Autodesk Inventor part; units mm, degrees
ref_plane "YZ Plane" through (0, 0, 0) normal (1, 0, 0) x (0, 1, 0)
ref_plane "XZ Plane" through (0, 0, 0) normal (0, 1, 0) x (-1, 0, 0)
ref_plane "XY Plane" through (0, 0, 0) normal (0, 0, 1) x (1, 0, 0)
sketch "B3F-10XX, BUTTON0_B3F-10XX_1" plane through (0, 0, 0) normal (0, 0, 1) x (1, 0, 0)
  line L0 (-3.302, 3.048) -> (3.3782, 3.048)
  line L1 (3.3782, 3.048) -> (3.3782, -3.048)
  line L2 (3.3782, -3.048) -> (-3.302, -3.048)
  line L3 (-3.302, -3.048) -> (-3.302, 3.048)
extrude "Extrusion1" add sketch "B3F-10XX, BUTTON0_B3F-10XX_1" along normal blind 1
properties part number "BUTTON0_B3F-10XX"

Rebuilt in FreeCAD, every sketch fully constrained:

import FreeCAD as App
import Part
import Sketcher
from FreeCAD import Vector
Q = App.Units.Quantity

doc = App.newDocument("Part")
params = doc.addObject("Spreadsheet::Sheet", "Params")
for row, (alias, value) in enumerate([
    ("sketch1_height", "0.24 in"),
    ("sketch1_width", "0.263 in"),
    ("pad1_length", "1 mm"),
], start=1):
    params.set(f"A{row}", alias)
    params.set(f"B{row}", "=" + value)
    params.setAlias(f"B{row}", alias)

body = doc.addObject("PartDesign::Body", "Body")

# Sketch on XY plane
sketch1 = doc.addObject("Sketcher::SketchObject", "Sketch")
body.addObject(sketch1)
sketch1.AttachmentSupport = (doc.XY_Plane, [""])
sketch1.MapMode = "FlatFace"
sketch1.addGeometry([
    Part.LineSegment(Vector(3, 3, 0), Vector(-3, 3, 0)),
    Part.LineSegment(Vector(-3, 3, 0), Vector(-3, -3, 0)),
    Part.LineSegment(Vector(-3, -3, 0), Vector(3, -3, 0)),
    Part.LineSegment(Vector(3, -3, 0), Vector(3, 3, 0)),
], False)
sketch1.addConstraint([
    Sketcher.Constraint("Coincident", 0, 2, 1, 1),
    Sketcher.Constraint("Coincident", 1, 2, 2, 1),
    Sketcher.Constraint("Coincident", 2, 2, 3, 1),
    Sketcher.Constraint("Coincident", 3, 2, 0, 1),
    Sketcher.Constraint("Horizontal", 0),
    Sketcher.Constraint("Vertical", 1),
    Sketcher.Constraint("Horizontal", 2),
    Sketcher.Constraint("Vertical", 3),
    Sketcher.Constraint("DistanceY", 1, 2, 1, 1, Q("0.24 in")),
    Sketcher.Constraint("DistanceX", 0, 2, 0, 1, Q("0.263 in")),
    Sketcher.Constraint("DistanceX", 0, 2, -1, 1, Q("0.13 in")),
    Sketcher.Constraint("DistanceY", -1, 1, 0, 2, Q("0.12 in")),
])
sketch1.setExpression("Constraints[8]", "Params.sketch1_height")
sketch1.setExpression("Constraints[9]", "Params.sketch1_width")
pad1 = doc.addObject("PartDesign::Pad", "Pad")
body.addObject(pad1)
pad1.Profile = sketch1
pad1.setExpression("Length", "Params.pad1_length")

doc.recompute()
